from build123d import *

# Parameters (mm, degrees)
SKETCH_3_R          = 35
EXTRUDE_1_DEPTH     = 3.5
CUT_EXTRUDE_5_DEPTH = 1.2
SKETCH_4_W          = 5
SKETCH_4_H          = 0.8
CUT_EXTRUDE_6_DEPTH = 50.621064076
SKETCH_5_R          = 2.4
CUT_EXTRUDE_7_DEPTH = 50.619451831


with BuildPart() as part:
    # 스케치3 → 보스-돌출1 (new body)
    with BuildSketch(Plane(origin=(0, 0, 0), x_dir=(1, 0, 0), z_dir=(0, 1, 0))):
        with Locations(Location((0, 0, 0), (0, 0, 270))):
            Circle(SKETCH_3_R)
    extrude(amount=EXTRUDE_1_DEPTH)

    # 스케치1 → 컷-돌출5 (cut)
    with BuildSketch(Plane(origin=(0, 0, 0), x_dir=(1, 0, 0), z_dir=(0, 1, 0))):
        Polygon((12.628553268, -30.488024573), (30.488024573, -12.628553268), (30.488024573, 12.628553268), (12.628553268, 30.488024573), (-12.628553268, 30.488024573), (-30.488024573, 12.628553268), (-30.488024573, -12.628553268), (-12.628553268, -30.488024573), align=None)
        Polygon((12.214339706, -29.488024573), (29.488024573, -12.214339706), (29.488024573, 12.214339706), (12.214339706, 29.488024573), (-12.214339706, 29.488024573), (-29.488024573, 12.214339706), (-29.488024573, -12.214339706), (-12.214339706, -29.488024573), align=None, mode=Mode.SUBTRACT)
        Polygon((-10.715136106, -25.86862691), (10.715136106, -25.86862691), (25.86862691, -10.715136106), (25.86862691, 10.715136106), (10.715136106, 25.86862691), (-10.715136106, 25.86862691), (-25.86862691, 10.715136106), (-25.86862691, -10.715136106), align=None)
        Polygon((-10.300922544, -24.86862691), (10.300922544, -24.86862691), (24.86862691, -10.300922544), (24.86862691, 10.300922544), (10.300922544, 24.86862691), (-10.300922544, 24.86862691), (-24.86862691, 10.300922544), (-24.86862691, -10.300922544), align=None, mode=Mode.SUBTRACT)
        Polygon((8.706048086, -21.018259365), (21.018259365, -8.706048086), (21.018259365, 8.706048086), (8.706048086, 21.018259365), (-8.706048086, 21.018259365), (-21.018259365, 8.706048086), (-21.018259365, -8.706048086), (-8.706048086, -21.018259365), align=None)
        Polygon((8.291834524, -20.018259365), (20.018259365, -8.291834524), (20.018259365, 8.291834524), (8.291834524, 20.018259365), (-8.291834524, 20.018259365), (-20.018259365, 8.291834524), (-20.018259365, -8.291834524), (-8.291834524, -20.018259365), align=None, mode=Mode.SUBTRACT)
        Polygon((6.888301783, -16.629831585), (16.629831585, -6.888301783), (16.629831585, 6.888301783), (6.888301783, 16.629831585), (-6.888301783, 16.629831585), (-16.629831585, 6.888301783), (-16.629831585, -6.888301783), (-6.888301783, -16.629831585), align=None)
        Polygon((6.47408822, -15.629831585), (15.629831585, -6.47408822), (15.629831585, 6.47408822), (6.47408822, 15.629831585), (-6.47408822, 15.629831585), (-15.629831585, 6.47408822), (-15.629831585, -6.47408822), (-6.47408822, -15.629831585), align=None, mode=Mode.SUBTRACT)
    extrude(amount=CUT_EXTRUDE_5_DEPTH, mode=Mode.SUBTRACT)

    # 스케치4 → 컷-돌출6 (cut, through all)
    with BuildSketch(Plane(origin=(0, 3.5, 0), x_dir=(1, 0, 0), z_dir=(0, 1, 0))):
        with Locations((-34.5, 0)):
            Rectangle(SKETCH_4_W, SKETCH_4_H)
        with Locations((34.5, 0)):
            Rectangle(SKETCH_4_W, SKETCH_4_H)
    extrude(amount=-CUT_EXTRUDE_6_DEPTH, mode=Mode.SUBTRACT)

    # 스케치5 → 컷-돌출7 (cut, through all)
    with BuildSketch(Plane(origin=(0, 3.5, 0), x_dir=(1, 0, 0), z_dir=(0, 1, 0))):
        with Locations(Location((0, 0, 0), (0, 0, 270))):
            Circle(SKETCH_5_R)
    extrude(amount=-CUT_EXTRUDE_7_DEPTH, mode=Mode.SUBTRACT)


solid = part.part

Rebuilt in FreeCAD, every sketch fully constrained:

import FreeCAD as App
import Part
import Sketcher

doc = App.newDocument("Part")
body = doc.addObject("PartDesign::Body", "Body")

sketch1 = doc.addObject("Sketcher::SketchObject", "Sketch")
body.addObject(sketch1)
sketch1.AttachmentSupport = (doc.XZ_Plane, [""])
sketch1.MapMode = "FlatFace"
sketch1.addGeometry(Part.Circle(App.Vector(0, 0, 0), App.Vector(0, 0, 1), 35), False)
sketch1.addConstraint([
    Sketcher.Constraint("Coincident", 0, 3, -1, 1),
    Sketcher.Constraint("Diameter", 0, 70.0),
])
pad1 = doc.addObject("PartDesign::Pad", "Pad")
body.addObject(pad1)
pad1.Profile = sketch1
pad1.Length = 3.5
pad1.Reversed = True

sketch2 = doc.addObject("Sketcher::SketchObject", "Sketch001")
body.addObject(sketch2)
sketch2.AttachmentSupport = (doc.XZ_Plane, [""])
sketch2.MapMode = "FlatFace"
sketch2.addGeometry([
    Part.LineSegment(App.Vector(13, 30, 0), App.Vector(30, 13, 0)),
    Part.LineSegment(App.Vector(30, 13, 0), App.Vector(30, -13, 0)),
    Part.LineSegment(App.Vector(30, -13, 0), App.Vector(13, -30, 0)),
    Part.LineSegment(App.Vector(13, -30, 0), App.Vector(-13, -30, 0)),
    Part.LineSegment(App.Vector(-13, -30, 0), App.Vector(-30, -13, 0)),
    Part.LineSegment(App.Vector(-30, -13, 0), App.Vector(-30, 13, 0)),
    Part.LineSegment(App.Vector(-30, 13, 0), App.Vector(-13, 30, 0)),
    Part.LineSegment(App.Vector(-13, 30, 0), App.Vector(13, 30, 0)),
    Part.LineSegment(App.Vector(29, 12, 0), App.Vector(12, 29, 0)),
    Part.LineSegment(App.Vector(12, 29, 0), App.Vector(-12, 29, 0)),
    Part.LineSegment(App.Vector(-12, 29, 0), App.Vector(-29, 12, 0)),
    Part.LineSegment(App.Vector(-29, 12, 0), App.Vector(-29, -12, 0)),
    Part.LineSegment(App.Vector(-29, -12, 0), App.Vector(-12, -29, 0)),
    Part.LineSegment(App.Vector(-12, -29, 0), App.Vector(12, -29, 0)),
    Part.LineSegment(App.Vector(12, -29, 0), App.Vector(29, -12, 0)),
    Part.LineSegment(App.Vector(29, -12, 0), App.Vector(29, 12, 0)),
    Part.LineSegment(App.Vector(-11, 26, 0), App.Vector(11, 26, 0)),
    Part.LineSegment(App.Vector(11, 26, 0), App.Vector(26, 11, 0)),
    Part.LineSegment(App.Vector(26, 11, 0), App.Vector(26, -11, 0)),
    Part.LineSegment(App.Vector(26, -11, 0), App.Vector(11, -26, 0)),
    Part.LineSegment(App.Vector(11, -26, 0), App.Vector(-11, -26, 0)),
    Part.LineSegment(App.Vector(-11, -26, 0), App.Vector(-26, -11, 0)),
    Part.LineSegment(App.Vector(-26, -11, 0), App.Vector(-26, 11, 0)),
    Part.LineSegment(App.Vector(-26, 11, 0), App.Vector(-11, 26, 0)),
    Part.LineSegment(App.Vector(10, 25, 0), App.Vector(-10, 25, 0)),
    Part.LineSegment(App.Vector(-10, 25, 0), App.Vector(-25, 10, 0)),
    Part.LineSegment(App.Vector(-25, 10, 0), App.Vector(-25, -10, 0)),
    Part.LineSegment(App.Vector(-25, -10, 0), App.Vector(-10, -25, 0)),
    Part.LineSegment(App.Vector(-10, -25, 0), App.Vector(10, -25, 0)),
    Part.LineSegment(App.Vector(10, -25, 0), App.Vector(25, -10, 0)),
    Part.LineSegment(App.Vector(25, -10, 0), App.Vector(25, 10, 0)),
    Part.LineSegment(App.Vector(25, 10, 0), App.Vector(10, 25, 0)),
    Part.LineSegment(App.Vector(9, 21, 0), App.Vector(21, 9, 0)),
    Part.LineSegment(App.Vector(21, 9, 0), App.Vector(21, -9, 0)),
    Part.LineSegment(App.Vector(21, -9, 0), App.Vector(9, -21, 0)),
    Part.LineSegment(App.Vector(9, -21, 0), App.Vector(-9, -21, 0)),
    Part.LineSegment(App.Vector(-9, -21, 0), App.Vector(-21, -9, 0)),
    Part.LineSegment(App.Vector(-21, -9, 0), App.Vector(-21, 9, 0)),
    Part.LineSegment(App.Vector(-21, 9, 0), App.Vector(-9, 21, 0)),
    Part.LineSegment(App.Vector(-9, 21, 0), App.Vector(9, 21, 0)),
    Part.LineSegment(App.Vector(20, 8, 0), App.Vector(8, 20, 0)),
    Part.LineSegment(App.Vector(8, 20, 0), App.Vector(-8, 20, 0)),
    Part.LineSegment(App.Vector(-8, 20, 0), App.Vector(-20, 8, 0)),
    Part.LineSegment(App.Vector(-20, 8, 0), App.Vector(-20, -8, 0)),
    Part.LineSegment(App.Vector(-20, -8, 0), App.Vector(-8, -20, 0)),
    Part.LineSegment(App.Vector(-8, -20, 0), App.Vector(8, -20, 0)),
    Part.LineSegment(App.Vector(8, -20, 0), App.Vector(20, -8, 0)),
    Part.LineSegment(App.Vector(20, -8, 0), App.Vector(20, 8, 0)),
    Part.LineSegment(App.Vector(7, 17, 0), App.Vector(17, 7, 0)),
    Part.LineSegment(App.Vector(17, 7, 0), App.Vector(17, -7, 0)),
    Part.LineSegment(App.Vector(17, -7, 0), App.Vector(7, -17, 0)),
    Part.LineSegment(App.Vector(7, -17, 0), App.Vector(-7, -17, 0)),
    Part.LineSegment(App.Vector(-7, -17, 0), App.Vector(-17, -7, 0)),
    Part.LineSegment(App.Vector(-17, -7, 0), App.Vector(-17, 7, 0)),
    Part.LineSegment(App.Vector(-17, 7, 0), App.Vector(-7, 17, 0)),
    Part.LineSegment(App.Vector(-7, 17, 0), App.Vector(7, 17, 0)),
    Part.LineSegment(App.Vector(16, 6, 0), App.Vector(6, 16, 0)),
    Part.LineSegment(App.Vector(6, 16, 0), App.Vector(-6, 16, 0)),
    Part.LineSegment(App.Vector(-6, 16, 0), App.Vector(-16, 6, 0)),
    Part.LineSegment(App.Vector(-16, 6, 0), App.Vector(-16, -6, 0)),
    Part.LineSegment(App.Vector(-16, -6, 0), App.Vector(-6, -16, 0)),
    Part.LineSegment(App.Vector(-6, -16, 0), App.Vector(6, -16, 0)),
    Part.LineSegment(App.Vector(6, -16, 0), App.Vector(16, -6, 0)),
    Part.LineSegment(App.Vector(16, -6, 0), App.Vector(16, 6, 0)),
], False)
sketch2.addConstraint([
    Sketcher.Constraint("Coincident", 0, 2, 1, 1),
    Sketcher.Constraint("Coincident", 1, 2, 2, 1),
    Sketcher.Constraint("Coincident", 2, 2, 3, 1),
    Sketcher.Constraint("Coincident", 3, 2, 4, 1),
    Sketcher.Constraint("Coincident", 4, 2, 5, 1),
    Sketcher.Constraint("Coincident", 5, 2, 6, 1),
    Sketcher.Constraint("Coincident", 6, 2, 7, 1),
    Sketcher.Constraint("Coincident", 7, 2, 0, 1),
    Sketcher.Constraint("Coincident", 8, 2, 9, 1),
    Sketcher.Constraint("Coincident", 9, 2, 10, 1),
    Sketcher.Constraint("Coincident", 10, 2, 11, 1),
    Sketcher.Constraint("Coincident", 11, 2, 12, 1),
    Sketcher.Constraint("Coincident", 12, 2, 13, 1),
    Sketcher.Constraint("Coincident", 13, 2, 14, 1),
    Sketcher.Constraint("Coincident", 14, 2, 15, 1),
    Sketcher.Constraint("Coincident", 15, 2, 8, 1),
    Sketcher.Constraint("Coincident", 16, 2, 17, 1),
    Sketcher.Constraint("Coincident", 17, 2, 18, 1),
    Sketcher.Constraint("Coincident", 18, 2, 19, 1),
    Sketcher.Constraint("Coincident", 19, 2, 20, 1),
    Sketcher.Constraint("Coincident", 20, 2, 21, 1),
    Sketcher.Constraint("Coincident", 21, 2, 22, 1),
    Sketcher.Constraint("Coincident", 22, 2, 23, 1),
    Sketcher.Constraint("Coincident", 23, 2, 16, 1),
    Sketcher.Constraint("Coincident", 24, 2, 25, 1),
    Sketcher.Constraint("Coincident", 25, 2, 26, 1),
    Sketcher.Constraint("Coincident", 26, 2, 27, 1),
    Sketcher.Constraint("Coincident", 27, 2, 28, 1),
    Sketcher.Constraint("Coincident", 28, 2, 29, 1),
    Sketcher.Constraint("Coincident", 29, 2, 30, 1),
    Sketcher.Constraint("Coincident", 30, 2, 31, 1),
    Sketcher.Constraint("Coincident", 31, 2, 24, 1),
    Sketcher.Constraint("Coincident", 32, 2, 33, 1),
    Sketcher.Constraint("Coincident", 33, 2, 34, 1),
    Sketcher.Constraint("Coincident", 34, 2, 35, 1),
    Sketcher.Constraint("Coincident", 35, 2, 36, 1),
    Sketcher.Constraint("Coincident", 36, 2, 37, 1),
    Sketcher.Constraint("Coincident", 37, 2, 38, 1),
    Sketcher.Constraint("Coincident", 38, 2, 39, 1),
    Sketcher.Constraint("Coincident", 39, 2, 32, 1),
    Sketcher.Constraint("Coincident", 40, 2, 41, 1),
    Sketcher.Constraint("Coincident", 41, 2, 42, 1),
    Sketcher.Constraint("Coincident", 42, 2, 43, 1),
    Sketcher.Constraint("Coincident", 43, 2, 44, 1),
    Sketcher.Constraint("Coincident", 44, 2, 45, 1),
    Sketcher.Constraint("Coincident", 45, 2, 46, 1),
    Sketcher.Constraint("Coincident", 46, 2, 47, 1),
    Sketcher.Constraint("Coincident", 47, 2, 40, 1),
    Sketcher.Constraint("Coincident", 48, 2, 49, 1),
    Sketcher.Constraint("Coincident", 49, 2, 50, 1),
    Sketcher.Constraint("Coincident", 50, 2, 51, 1),
    Sketcher.Constraint("Coincident", 51, 2, 52, 1),
    Sketcher.Constraint("Coincident", 52, 2, 53, 1),
    Sketcher.Constraint("Coincident", 53, 2, 54, 1),
    Sketcher.Constraint("Coincident", 54, 2, 55, 1),
    Sketcher.Constraint("Coincident", 55, 2, 48, 1),
    Sketcher.Constraint("Coincident", 56, 2, 57, 1),
    Sketcher.Constraint("Coincident", 57, 2, 58, 1),
    Sketcher.Constraint("Coincident", 58, 2, 59, 1),
    Sketcher.Constraint("Coincident", 59, 2, 60, 1),
    Sketcher.Constraint("Coincident", 60, 2, 61, 1),
    Sketcher.Constraint("Coincident", 61, 2, 62, 1),
    Sketcher.Constraint("Coincident", 62, 2, 63, 1),
    Sketcher.Constraint("Coincident", 63, 2, 56, 1),
    Sketcher.Constraint("Vertical", 1),
    Sketcher.Constraint("Horizontal", 3),
    Sketcher.Constraint("Vertical", 5),
    Sketcher.Constraint("Horizontal", 7),
    Sketcher.Constraint("Horizontal", 9),
    Sketcher.Constraint("Vertical", 11),
    Sketcher.Constraint("Horizontal", 13),
    Sketcher.Constraint("Vertical", 15),
    Sketcher.Constraint("Horizontal", 16),
    Sketcher.Constraint("Vertical", 18),
    Sketcher.Constraint("Horizontal", 20),
    Sketcher.Constraint("Vertical", 22),
    Sketcher.Constraint("Horizontal", 24),
    Sketcher.Constraint("Vertical", 26),
    Sketcher.Constraint("Horizontal", 28),
    Sketcher.Constraint("Vertical", 30),
    Sketcher.Constraint("Vertical", 33),
    Sketcher.Constraint("Horizontal", 35),
    Sketcher.Constraint("Vertical", 37),
    Sketcher.Constraint("Horizontal", 39),
    Sketcher.Constraint("Horizontal", 41),
    Sketcher.Constraint("Vertical", 43),
    Sketcher.Constraint("Horizontal", 45),
    Sketcher.Constraint("Vertical", 47),
    Sketcher.Constraint("Vertical", 49),
    Sketcher.Constraint("Horizontal", 51),
    Sketcher.Constraint("Vertical", 53),
    Sketcher.Constraint("Horizontal", 55),
    Sketcher.Constraint("Horizontal", 57),
    Sketcher.Constraint("Vertical", 59),
    Sketcher.Constraint("Horizontal", 61),
    Sketcher.Constraint("Vertical", 63),
    Sketcher.Constraint("Symmetric", 0, 2, 4, 2, -1, 1),
    Sketcher.Constraint("Symmetric", 2, 2, 6, 2, -1, 1),
    Sketcher.Constraint("Symmetric", 8, 2, 12, 2, -1, 1),
    Sketcher.Constraint("Symmetric", 10, 2, 14, 2, -1, 1),
    Sketcher.Constraint("Symmetric", 16, 2, 20, 2, -1, 1),
    Sketcher.Constraint("Symmetric", 17, 2, 21, 2, -1, 1),
    Sketcher.Constraint("Symmetric", 24, 2, 28, 2, -1, 1),
    Sketcher.Constraint("Symmetric", 25, 2, 29, 2, -1, 1),
    Sketcher.Constraint("Symmetric", 32, 2, 36, 2, -1, 1),
    Sketcher.Constraint("Symmetric", 34, 2, 38, 2, -1, 1),
    Sketcher.Constraint("Symmetric", 40, 2, 44, 2, -1, 1),
    Sketcher.Constraint("Symmetric", 42, 2, 46, 2, -1, 1),
    Sketcher.Constraint("Symmetric", 48, 2, 52, 2, -1, 1),
    Sketcher.Constraint("Symmetric", 50, 2, 54, 2, -1, 1),
    Sketcher.Constraint("Symmetric", 56, 2, 60, 2, -1, 1),
    Sketcher.Constraint("Symmetric", 58, 2, 62, 2, -1, 1),
    Sketcher.Constraint("Perpendicular", 0, 2),
    Sketcher.Constraint("Perpendicular", 2, 4),
    Sketcher.Constraint("Perpendicular", 4, 6),
    Sketcher.Constraint("Perpendicular", 6, 8),
    Sketcher.Constraint("Perpendicular", 8, 10),
    Sketcher.Constraint("Perpendicular", 10, 12),
    Sketcher.Constraint("Perpendicular", 12, 14),
    Sketcher.Constraint("Perpendicular", 14, 17),
    Sketcher.Constraint("Perpendicular", 17, 19),
    Sketcher.Constraint("Perpendicular", 21, 23),
    Sketcher.Constraint("Parallel", 23, 25),
    Sketcher.Constraint("Perpendicular", 25, 27),
    Sketcher.Constraint("Perpendicular", 29, 31),
    Sketcher.Constraint("Parallel", 31, 32),
    Sketcher.Constraint("Perpendicular", 32, 34),
    Sketcher.Constraint("Perpendicular", 34, 36),
    Sketcher.Constraint("Perpendicular", 36, 38),
    Sketcher.Constraint("Perpendicular", 38, 40),
    Sketcher.Constraint("Perpendicular", 40, 42),
    Sketcher.Constraint("Perpendicular", 42, 44),
    Sketcher.Constraint("Perpendicular", 44, 46),
    Sketcher.Constraint("Perpendicular", 46, 48),
    Sketcher.Constraint("Perpendicular", 48, 50),
    Sketcher.Constraint("Perpendicular", 50, 52),
    Sketcher.Constraint("Perpendicular", 52, 54),
    Sketcher.Constraint("Perpendicular", 54, 56),
    Sketcher.Constraint("Perpendicular", 56, 58),
    Sketcher.Constraint("Perpendicular", 58, 60),
    Sketcher.Constraint("Perpendicular", 60, 62),
    Sketcher.Constraint("Horizontal", 1, 2, 4, 2),
    Sketcher.Constraint("Horizontal", 11, 2, 14, 2),
    Sketcher.Constraint("Horizontal", 18, 2, 21, 2),
    Sketcher.Constraint("Horizontal", 17, 2, 22, 2),
    Sketcher.Constraint("Horizontal", 26, 2, 29, 2),
    Sketcher.Constraint("Horizontal", 25, 2, 30, 2),
    Sketcher.Constraint("Horizontal", 33, 2, 36, 2),
    Sketcher.Constraint("Horizontal", 43, 2, 46, 2),
    Sketcher.Constraint("Horizontal", 49, 2, 52, 2),
    Sketcher.Constraint("Horizontal", 59, 2, 62, 2),
    Sketcher.Constraint("Vertical", 3, 2, 6, 2),
    Sketcher.Constraint("Equal", 7, 1),
    Sketcher.Constraint("Equal", 13, 11),
    Sketcher.Constraint("Equal", 20, 18),
    Sketcher.Constraint("Equal", 28, 26),
    Sketcher.Constraint("Equal", 39, 33),
    Sketcher.Constraint("Equal", 45, 43),
    Sketcher.Constraint("Equal", 55, 49),
    Sketcher.Constraint("Equal", 61, 59),
    Sketcher.Constraint("DistanceX", 9, 2, 9, 1, 24.428679),
    Sketcher.Constraint("DistanceX", 41, 2, 41, 1, 16.583669),
    Sketcher.Constraint("DistanceY", -1, 1, 48, 2, 6.888302),
    Sketcher.Constraint("Distance", 8, 24.428679),
    Sketcher.Constraint("Distance", 40, 16.583669),
    Sketcher.Constraint("DistanceX", 3, 2, 3, 1, 25.257107),
    Sketcher.Constraint("DistanceX", 16, 1, 16, 2, 21.430272),
    Sketcher.Constraint("DistanceX", 24, 2, 24, 1, 20.601845),
    Sketcher.Constraint("DistanceX", 35, 2, 35, 1, 17.412096),
    Sketcher.Constraint("DistanceX", 57, 2, 57, 1, 12.948176),
    Sketcher.Constraint("DistanceX", -1, 1, 32, 2, 21.018259),
    Sketcher.Constraint("DistanceX", -1, 1, 48, 2, 16.629832),
    Sketcher.Constraint("DistanceY", -1, 1, 56, 2, 15.629832),
    Sketcher.Constraint("Distance", 0, 25.257107),
    Sketcher.Constraint("Distance", 17, 21.430272),
    Sketcher.Constraint("Distance", 25, 20.601845),
])
pocket1 = doc.addObject("PartDesign::Pocket", "Pocket")
body.addObject(pocket1)
pocket1.Profile = sketch2
pocket1.Length = 1.2

sketch3 = doc.addObject("Sketcher::SketchObject", "Sketch002")
body.addObject(sketch3)
sketch3.AttachmentSupport = (doc.XZ_Plane, [""])
sketch3.MapMode = "FlatFace"
sketch3.AttachmentOffset = App.Placement(App.Vector(0, 0, -3.5), App.Rotation())
sketch3.addGeometry([
    Part.LineSegment(App.Vector(-37, -0.4, 0), App.Vector(-37, 0.4, 0)),
    Part.LineSegment(App.Vector(-37, 0.4, 0), App.Vector(-32, 0.4, 0)),
    Part.LineSegment(App.Vector(-32, 0.4, 0), App.Vector(-32, -0.4, 0)),
    Part.LineSegment(App.Vector(-32, -0.4, 0), App.Vector(-37, -0.4, 0)),
    Part.LineSegment(App.Vector(32, -0.4, 0), App.Vector(32, 0.4, 0)),
    Part.LineSegment(App.Vector(32, 0.4, 0), App.Vector(37, 0.4, 0)),
    Part.LineSegment(App.Vector(37, 0.4, 0), App.Vector(37, -0.4, 0)),
    Part.LineSegment(App.Vector(37, -0.4, 0), App.Vector(32, -0.4, 0)),
], False)
sketch3.addConstraint([
    Sketcher.Constraint("Coincident", 0, 2, 1, 1),
    Sketcher.Constraint("Coincident", 1, 2, 2, 1),
    Sketcher.Constraint("Coincident", 2, 2, 3, 1),
    Sketcher.Constraint("Coincident", 3, 2, 0, 1),
    Sketcher.Constraint("Coincident", 4, 2, 5, 1),
    Sketcher.Constraint("Coincident", 5, 2, 6, 1),
    Sketcher.Constraint("Coincident", 6, 2, 7, 1),
    Sketcher.Constraint("Coincident", 7, 2, 4, 1),
    Sketcher.Constraint("Vertical", 0),
    Sketcher.Constraint("Horizontal", 1),
    Sketcher.Constraint("Vertical", 2),
    Sketcher.Constraint("Horizontal", 3),
    Sketcher.Constraint("Vertical", 4),
    Sketcher.Constraint("Horizontal", 5),
    Sketcher.Constraint("Vertical", 6),
    Sketcher.Constraint("Horizontal", 7),
    Sketcher.Constraint("Symmetric", 2, 2, 4, 2, -1, 1),
    Sketcher.Constraint("Symmetric", 0, 2, 6, 2, -1, 1),
    Sketcher.Constraint("Horizontal", 1, 2, 4, 2),
    Sketcher.Constraint("DistanceX", 1, 1, 1, 2, 5.0),
    Sketcher.Constraint("DistanceY", 0, 1, 0, 2, 0.8),
    Sketcher.Constraint("DistanceX", 0, 2, -1, 1, 37.0),
])
pocket2 = doc.addObject("PartDesign::Pocket", "Pocket001")
body.addObject(pocket2)
pocket2.Profile = sketch3
pocket2.Type = "ThroughAll"
pocket2.Reversed = True

sketch4 = doc.addObject("Sketcher::SketchObject", "Sketch003")
body.addObject(sketch4)
sketch4.AttachmentSupport = (doc.XZ_Plane, [""])
sketch4.MapMode = "FlatFace"
sketch4.AttachmentOffset = App.Placement(App.Vector(0, 0, -3.5), App.Rotation())
sketch4.addGeometry(Part.Circle(App.Vector(0, 0, 0), App.Vector(0, 0, 1), 2.4), False)
sketch4.addConstraint([
    Sketcher.Constraint("Coincident", 0, 3, -1, 1),
    Sketcher.Constraint("Diameter", 0, 4.8),
])
pocket3 = doc.addObject("PartDesign::Pocket", "Pocket002")
body.addObject(pocket3)
pocket3.Profile = sketch4
pocket3.Type = "ThroughAll"
pocket3.Reversed = True

doc.recompute()
